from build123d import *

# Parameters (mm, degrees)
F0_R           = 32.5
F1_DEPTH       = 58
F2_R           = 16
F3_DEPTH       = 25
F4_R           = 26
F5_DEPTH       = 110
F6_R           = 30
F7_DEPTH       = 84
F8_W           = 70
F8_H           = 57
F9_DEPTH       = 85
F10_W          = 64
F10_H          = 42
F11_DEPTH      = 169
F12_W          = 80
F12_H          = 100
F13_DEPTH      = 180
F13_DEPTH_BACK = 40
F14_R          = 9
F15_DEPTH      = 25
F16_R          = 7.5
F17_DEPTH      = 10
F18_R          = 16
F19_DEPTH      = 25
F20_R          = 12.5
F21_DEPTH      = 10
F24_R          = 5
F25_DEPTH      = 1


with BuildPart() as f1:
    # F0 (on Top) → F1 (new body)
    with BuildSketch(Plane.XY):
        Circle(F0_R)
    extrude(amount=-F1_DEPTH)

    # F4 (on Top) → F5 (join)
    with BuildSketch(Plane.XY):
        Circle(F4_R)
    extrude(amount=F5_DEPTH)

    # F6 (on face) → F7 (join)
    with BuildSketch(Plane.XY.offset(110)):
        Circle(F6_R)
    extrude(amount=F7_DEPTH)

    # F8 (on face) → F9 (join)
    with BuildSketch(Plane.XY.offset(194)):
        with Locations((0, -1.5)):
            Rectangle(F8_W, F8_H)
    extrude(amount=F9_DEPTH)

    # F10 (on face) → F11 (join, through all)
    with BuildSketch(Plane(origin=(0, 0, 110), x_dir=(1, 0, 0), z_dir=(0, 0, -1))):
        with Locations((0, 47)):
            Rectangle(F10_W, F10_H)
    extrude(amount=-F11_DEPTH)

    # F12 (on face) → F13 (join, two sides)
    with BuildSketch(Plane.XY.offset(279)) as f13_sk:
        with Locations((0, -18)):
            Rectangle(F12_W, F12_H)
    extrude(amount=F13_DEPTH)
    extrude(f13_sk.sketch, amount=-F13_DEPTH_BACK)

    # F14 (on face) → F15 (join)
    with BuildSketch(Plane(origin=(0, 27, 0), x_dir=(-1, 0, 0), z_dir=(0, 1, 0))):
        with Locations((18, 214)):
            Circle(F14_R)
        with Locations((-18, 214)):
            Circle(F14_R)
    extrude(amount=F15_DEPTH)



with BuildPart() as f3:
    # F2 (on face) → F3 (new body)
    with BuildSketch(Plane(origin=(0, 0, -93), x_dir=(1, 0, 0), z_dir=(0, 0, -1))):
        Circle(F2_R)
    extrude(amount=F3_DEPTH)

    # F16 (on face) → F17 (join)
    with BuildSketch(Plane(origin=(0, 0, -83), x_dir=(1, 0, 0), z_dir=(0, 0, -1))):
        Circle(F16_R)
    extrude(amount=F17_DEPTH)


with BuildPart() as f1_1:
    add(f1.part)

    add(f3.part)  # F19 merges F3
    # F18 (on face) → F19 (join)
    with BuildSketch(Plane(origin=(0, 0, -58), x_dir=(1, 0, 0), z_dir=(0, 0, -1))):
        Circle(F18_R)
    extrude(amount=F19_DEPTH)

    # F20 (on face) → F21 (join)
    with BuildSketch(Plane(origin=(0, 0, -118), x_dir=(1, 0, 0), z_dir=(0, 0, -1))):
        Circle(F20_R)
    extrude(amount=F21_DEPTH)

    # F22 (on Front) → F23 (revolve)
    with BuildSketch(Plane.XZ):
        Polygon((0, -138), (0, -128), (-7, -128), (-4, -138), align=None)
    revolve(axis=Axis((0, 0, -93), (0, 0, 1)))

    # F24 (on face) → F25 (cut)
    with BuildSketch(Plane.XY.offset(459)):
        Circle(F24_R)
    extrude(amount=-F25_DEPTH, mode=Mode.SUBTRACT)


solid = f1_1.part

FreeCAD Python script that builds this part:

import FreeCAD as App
import Part
import Sketcher
from FreeCAD import Vector
Q = App.Units.Quantity


def add_polygon(sketch, points):
    """Adds a closed chain of lines whose ends are joined by coincident constraints."""
    first, n = sketch.GeometryCount, len(points)
    for a, b in zip(points, points[1:] + points[:1]):
        sketch.addGeometry(Part.LineSegment(App.Vector(*a, 0), App.Vector(*b, 0)), False)
    for i in range(n):
        sketch.addConstraint(Sketcher.Constraint("Coincident", first + i, 2, first + (i + 1) % n, 1))

doc = App.newDocument("Part")
body = doc.addObject("PartDesign::Body", "Body")

sketch1 = doc.addObject("Sketcher::SketchObject", "Sketch")
body.addObject(sketch1)
sketch1.AttachmentSupport = (doc.XY_Plane, [""])
sketch1.MapMode = "FlatFace"
sketch1.addGeometry(Part.Circle(Vector(0, 0, 0), Vector(0, 0, 1), 32), False)
sketch1.addConstraint([
    Sketcher.Constraint("Coincident", 0, 3, -1, 1),
    Sketcher.Constraint("Diameter", 0, Q("65 mm")),
])
pad1 = doc.addObject("PartDesign::Pad", "Pad")
body.addObject(pad1)
pad1.Profile = sketch1
pad1.Length = 58
pad1.Reversed = True

sketch2 = doc.addObject("Sketcher::SketchObject", "Sketch001")
body.addObject(sketch2)
sketch2.AttachmentSupport = (doc.XY_Plane, [""])
sketch2.MapMode = "FlatFace"
sketch2.addGeometry(Part.Circle(Vector(0, 0, 0), Vector(0, 0, 1), 26), False)
sketch2.addConstraint([
    Sketcher.Constraint("Coincident", 0, 3, -1, 1),
    Sketcher.Constraint("Diameter", 0, Q("52 mm")),
])
pad2 = doc.addObject("PartDesign::Pad", "Pad001")
body.addObject(pad2)
pad2.Profile = sketch2
pad2.Length = 110

sketch3 = doc.addObject("Sketcher::SketchObject", "Sketch002")
body.addObject(sketch3)
sketch3.AttachmentSupport = (doc.XY_Plane, [""])
sketch3.MapMode = "FlatFace"
sketch3.AttachmentOffset = App.Placement(Vector(0, 0, 110), App.Rotation())
sketch3.addGeometry(Part.Circle(Vector(0, 0, 0), Vector(0, 0, 1), 30), False)
sketch3.addConstraint([
    Sketcher.Constraint("Coincident", 0, 3, -1, 1),
    Sketcher.Constraint("Diameter", 0, Q("60 mm")),
])
pad3 = doc.addObject("PartDesign::Pad", "Pad002")
body.addObject(pad3)
pad3.Profile = sketch3
pad3.Length = 84

sketch4 = doc.addObject("Sketcher::SketchObject", "Sketch003")
body.addObject(sketch4)
sketch4.AttachmentSupport = (doc.XY_Plane, [""])
sketch4.MapMode = "FlatFace"
sketch4.AttachmentOffset = App.Placement(Vector(0, 0, 194), App.Rotation())
add_polygon(sketch4, [(-35, 27), (-35, -30), (35, -30), (35, 27)])
sketch4.addConstraint([
    Sketcher.Constraint("Vertical", 0),
    Sketcher.Constraint("Horizontal", 1),
    Sketcher.Constraint("Vertical", 2),
    Sketcher.Constraint("Horizontal", 3),
    Sketcher.Constraint("DistanceX", 1, 1, 1, 2, Q("70 mm")),
    Sketcher.Constraint("DistanceY", 0, 2, 0, 1, Q("57 mm")),
    Sketcher.Constraint("DistanceX", 0, 2, -1, 1, Q("35 mm")),
    Sketcher.Constraint("DistanceY", 0, 2, -1, 1, Q("30 mm")),
])
pad4 = doc.addObject("PartDesign::Pad", "Pad003")
body.addObject(pad4)
pad4.Profile = sketch4
pad4.Length = 85

sketch5 = doc.addObject("Sketcher::SketchObject", "Sketch004")
body.addObject(sketch5)
sketch5.AttachmentSupport = (doc.XY_Plane, [""])
sketch5.MapMode = "FlatFace"
sketch5.AttachmentOffset = App.Placement(Vector(0, 0, 110), App.Rotation())
add_polygon(sketch5, [(-32, -68), (-32, -26), (32, -26), (32, -68)])
sketch5.addConstraint([
    Sketcher.Constraint("Vertical", 0),
    Sketcher.Constraint("Horizontal", 1),
    Sketcher.Constraint("Vertical", 2),
    Sketcher.Constraint("Horizontal", 3),
    Sketcher.Constraint("DistanceX", 1, 1, 1, 2, Q("64 mm")),
    Sketcher.Constraint("DistanceY", 0, 1, 0, 2, Q("42 mm")),
    Sketcher.Constraint("DistanceX", 0, 2, -1, 1, Q("32 mm")),
    Sketcher.Constraint("DistanceY", 0, 2, -1, 1, Q("26 mm")),
])
pad5 = doc.addObject("PartDesign::Pad", "Pad004")
body.addObject(pad5)
pad5.Profile = sketch5
pad5.Length = 169

sketch6 = doc.addObject("Sketcher::SketchObject", "Sketch005")
body.addObject(sketch6)
sketch6.AttachmentSupport = (doc.XY_Plane, [""])
sketch6.MapMode = "FlatFace"
sketch6.AttachmentOffset = App.Placement(Vector(0, 0, 279), App.Rotation())
add_polygon(sketch6, [(-40, 32), (-40, -68), (40, -68), (40, 32)])
sketch6.addConstraint([
    Sketcher.Constraint("Vertical", 0),
    Sketcher.Constraint("Horizontal", 1),
    Sketcher.Constraint("Vertical", 2),
    Sketcher.Constraint("Horizontal", 3),
    Sketcher.Constraint("DistanceX", 1, 1, 1, 2, Q("80 mm")),
    Sketcher.Constraint("DistanceY", 0, 2, 0, 1, Q("100 mm")),
    Sketcher.Constraint("DistanceX", 0, 2, -1, 1, Q("40 mm")),
    Sketcher.Constraint("DistanceY", 0, 2, -1, 1, Q("68 mm")),
])
pad6 = doc.addObject("PartDesign::Pad", "Pad005")
body.addObject(pad6)
pad6.Profile = sketch6
pad6.Type = "TwoLengths"
pad6.Length = 180
pad6.Length2 = 40

sketch7 = doc.addObject("Sketcher::SketchObject", "Sketch006")
body.addObject(sketch7)
sketch7.AttachmentSupport = (doc.XZ_Plane, [""])
sketch7.MapMode = "FlatFace"
sketch7.AttachmentOffset = App.Placement(Vector(0, 0, -27), App.Rotation())
sketch7.addGeometry([
    Part.Circle(Vector(-18, 214, 0), Vector(0, 0, 1), 9),
    Part.Circle(Vector(18, 214, 0), Vector(0, 0, 1), 9),
], False)
sketch7.addConstraint([
    Sketcher.Constraint("Equal", 0, 1),
    Sketcher.Constraint("Symmetric", 0, 3, 1, 3, -2),
    Sketcher.Constraint("Diameter", 0, Q("18 mm")),
    Sketcher.Constraint("DistanceX", 0, 3, -1, 1, Q("18 mm")),
    Sketcher.Constraint("DistanceY", -1, 1, 0, 3, Q("214 mm")),
])
pad7 = doc.addObject("PartDesign::Pad", "Pad006")
body.addObject(pad7)
pad7.Profile = sketch7
pad7.Length = 25
pad7.Reversed = True
body2 = doc.addObject("PartDesign::Body", "Body001")

sketch8 = doc.addObject("Sketcher::SketchObject", "Sketch007")
body2.addObject(sketch8)
sketch8.AttachmentSupport = (doc.getObject("XY_Plane001"), [""])
sketch8.MapMode = "FlatFace"
sketch8.AttachmentOffset = App.Placement(Vector(0, 0, -93), App.Rotation())
sketch8.addGeometry(Part.Circle(Vector(0, 0, 0), Vector(0, 0, 1), 16), False)
sketch8.addConstraint([
    Sketcher.Constraint("Coincident", 0, 3, -1, 1),
    Sketcher.Constraint("Diameter", 0, Q("32 mm")),
])
pad8 = doc.addObject("PartDesign::Pad", "Pad007")
body2.addObject(pad8)
pad8.Profile = sketch8
pad8.Length = 25
pad8.Reversed = True

sketch9 = doc.addObject("Sketcher::SketchObject", "Sketch008")
body2.addObject(sketch9)
sketch9.AttachmentSupport = (doc.getObject("XY_Plane001"), [""])
sketch9.MapMode = "FlatFace"
sketch9.AttachmentOffset = App.Placement(Vector(0, 0, -83), App.Rotation())
sketch9.addGeometry(Part.Circle(Vector(0, 0, 0), Vector(0, 0, 1), 8), False)
sketch9.addConstraint([
    Sketcher.Constraint("Coincident", 0, 3, -1, 1),
    Sketcher.Constraint("Diameter", 0, Q("15 mm")),
])
pad9 = doc.addObject("PartDesign::Pad", "Pad008")
body2.addObject(pad9)
pad9.Profile = sketch9
pad9.Length = 10
pad9.Reversed = True
body.AllowCompound = True
doc.recompute()

boolean = doc.addObject("PartDesign::Boolean", "Boolean")
body.addObject(boolean)
boolean.Type = "Fuse"
boolean.addObjects([body2])

sketch10 = doc.addObject("Sketcher::SketchObject", "Sketch009")
body.addObject(sketch10)
sketch10.AttachmentSupport = (doc.XY_Plane, [""])
sketch10.MapMode = "FlatFace"
sketch10.AttachmentOffset = App.Placement(Vector(0, 0, -58), App.Rotation())
sketch10.addGeometry(Part.Circle(Vector(0, 0, 0), Vector(0, 0, 1), 16), False)
sketch10.addConstraint([
    Sketcher.Constraint("Coincident", 0, 3, -1, 1),
    Sketcher.Constraint("Diameter", 0, Q("32 mm")),
])
pad10 = doc.addObject("PartDesign::Pad", "Pad009")
body.addObject(pad10)
pad10.Profile = sketch10
pad10.Length = 25
pad10.Reversed = True

sketch11 = doc.addObject("Sketcher::SketchObject", "Sketch010")
body.addObject(sketch11)
sketch11.AttachmentSupport = (doc.XY_Plane, [""])
sketch11.MapMode = "FlatFace"
sketch11.AttachmentOffset = App.Placement(Vector(0, 0, -118), App.Rotation())
sketch11.addGeometry(Part.Circle(Vector(0, 0, 0), Vector(0, 0, 1), 12), False)
sketch11.addConstraint([
    Sketcher.Constraint("Coincident", 0, 3, -1, 1),
    Sketcher.Constraint("Diameter", 0, Q("25 mm")),
])
pad11 = doc.addObject("PartDesign::Pad", "Pad010")
body.addObject(pad11)
pad11.Profile = sketch11
pad11.Length = 10
pad11.Reversed = True

sketch12 = doc.addObject("Sketcher::SketchObject", "Sketch011")
body.addObject(sketch12)
sketch12.AttachmentSupport = (doc.XZ_Plane, [""])
sketch12.MapMode = "FlatFace"
add_polygon(sketch12, [(0, -138), (0, -128), (-7, -128), (-4, -138)])
sketch12.addConstraint([
    Sketcher.Constraint("Vertical", 0),
    Sketcher.Constraint("Horizontal", 1),
    Sketcher.Constraint("Horizontal", 3),
    Sketcher.Constraint("PointOnObject", 0, 2, -2),
    Sketcher.Constraint("DistanceX", 1, 2, 1, 1, Q("7 mm")),
    Sketcher.Constraint("DistanceX", 3, 1, 3, 2, Q("4 mm")),
    Sketcher.Constraint("DistanceY", 0, 1, 0, 2, Q("10 mm")),
    Sketcher.Constraint("DistanceY", 0, 2, -1, 1, Q("128 mm")),
])
revolution = doc.addObject("PartDesign::Revolution", "Revolution")
body.addObject(revolution)
revolution.Profile = sketch12
revolution.ReferenceAxis = (sketch12, ["V_Axis"])
revolution.Angle = 360

sketch13 = doc.addObject("Sketcher::SketchObject", "Sketch012")
body.addObject(sketch13)
sketch13.AttachmentSupport = (doc.XY_Plane, [""])
sketch13.MapMode = "FlatFace"
sketch13.AttachmentOffset = App.Placement(Vector(0, 0, 459), App.Rotation())
sketch13.addGeometry(Part.Circle(Vector(0, 0, 0), Vector(0, 0, 1), 5), False)
sketch13.addConstraint([
    Sketcher.Constraint("Coincident", 0, 3, -1, 1),
    Sketcher.Constraint("Diameter", 0, Q("10 mm")),
])
pocket1 = doc.addObject("PartDesign::Pocket", "Pocket")
body.addObject(pocket1)
pocket1.Profile = sketch13
pocket1.Length = 1

doc.recompute()
